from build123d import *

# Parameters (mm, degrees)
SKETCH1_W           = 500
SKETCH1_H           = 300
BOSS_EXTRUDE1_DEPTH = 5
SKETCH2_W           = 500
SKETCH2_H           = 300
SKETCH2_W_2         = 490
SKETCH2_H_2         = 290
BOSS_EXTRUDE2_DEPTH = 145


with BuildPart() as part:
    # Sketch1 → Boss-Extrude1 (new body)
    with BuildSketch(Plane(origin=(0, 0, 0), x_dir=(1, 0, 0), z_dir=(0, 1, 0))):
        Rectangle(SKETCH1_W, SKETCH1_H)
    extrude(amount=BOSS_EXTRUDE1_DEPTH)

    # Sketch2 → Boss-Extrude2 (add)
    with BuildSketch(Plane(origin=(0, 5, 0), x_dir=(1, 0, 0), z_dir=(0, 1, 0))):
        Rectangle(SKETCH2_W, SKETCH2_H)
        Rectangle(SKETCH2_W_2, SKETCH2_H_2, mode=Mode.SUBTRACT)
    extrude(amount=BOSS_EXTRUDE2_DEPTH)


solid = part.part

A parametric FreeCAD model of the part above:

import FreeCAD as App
import Part
import Sketcher

V = App.Vector
Q = App.Units.Quantity

doc = App.newDocument("Part")
body = doc.addObject("PartDesign::Body", "Body")

# Sketch on XZ plane
sketch1 = body.newObject("Sketcher::SketchObject", "Sketch")
sketch1.AttachmentSupport = (doc.getObject("XZ_Plane"), [""])
sketch1.MapMode = "FlatFace"
sketch1.addGeometry([
    Part.LineSegment(V(-250, -150, 0), V(-250, 150, 0)),
    Part.LineSegment(V(-250, 150, 0), V(250, 150, 0)),
    Part.LineSegment(V(250, 150, 0), V(250, -150, 0)),
    Part.LineSegment(V(250, -150, 0), V(-250, -150, 0)),
], False)
sketch1.addConstraint([
    Sketcher.Constraint("Coincident", 0, 2, 1, 1),
    Sketcher.Constraint("Coincident", 1, 2, 2, 1),
    Sketcher.Constraint("Coincident", 2, 2, 3, 1),
    Sketcher.Constraint("Coincident", 3, 2, 0, 1),
    Sketcher.Constraint("Vertical", 0),
    Sketcher.Constraint("Horizontal", 1),
    Sketcher.Constraint("Vertical", 2),
    Sketcher.Constraint("Horizontal", 3),
    Sketcher.Constraint("Symmetric", 0, 2, 2, 2, -1, 1),
    Sketcher.Constraint("DistanceX", 1, 1, 1, 2, Q("500 mm")),
    Sketcher.Constraint("DistanceY", 0, 1, 0, 2, Q("300 mm")),
])
pad1 = body.newObject("PartDesign::Pad", "Pad")
pad1.Profile = sketch1
pad1.Length = 5
pad1.Reversed = True

# Sketch on XZ plane
sketch2 = body.newObject("Sketcher::SketchObject", "Sketch001")
sketch2.AttachmentSupport = (doc.getObject("XZ_Plane"), [""])
sketch2.MapMode = "FlatFace"
sketch2.AttachmentOffset = App.Placement(V(0, 0, -5), App.Rotation())
sketch2.addGeometry([
    Part.LineSegment(V(-250, -150, 0), V(-250, 150, 0)),  # 0
    Part.LineSegment(V(-250, 150, 0), V(250, 150, 0)),  # 1
    Part.LineSegment(V(250, 150, 0), V(250, -150, 0)),  # 2
    Part.LineSegment(V(250, -150, 0), V(-250, -150, 0)),  # 3
    Part.LineSegment(V(245, 145, 0), V(-245, 145, 0)),  # 4
    Part.LineSegment(V(-245, 145, 0), V(-245, -145, 0)),  # 5
    Part.LineSegment(V(-245, -145, 0), V(245, -145, 0)),  # 6
    Part.LineSegment(V(245, -145, 0), V(245, 145, 0)),  # 7
], False)
sketch2.addConstraint([
    Sketcher.Constraint("Coincident", 0, 2, 1, 1),
    Sketcher.Constraint("Coincident", 1, 2, 2, 1),
    Sketcher.Constraint("Coincident", 2, 2, 3, 1),
    Sketcher.Constraint("Coincident", 3, 2, 0, 1),
    Sketcher.Constraint("Coincident", 4, 2, 5, 1),
    Sketcher.Constraint("Coincident", 5, 2, 6, 1),
    Sketcher.Constraint("Coincident", 6, 2, 7, 1),
    Sketcher.Constraint("Coincident", 7, 2, 4, 1),
    Sketcher.Constraint("Vertical", 0),
    Sketcher.Constraint("Horizontal", 1),
    Sketcher.Constraint("Vertical", 2),
    Sketcher.Constraint("Horizontal", 3),
    Sketcher.Constraint("Horizontal", 4),
    Sketcher.Constraint("Vertical", 5),
    Sketcher.Constraint("Horizontal", 6),
    Sketcher.Constraint("Vertical", 7),
    Sketcher.Constraint("Symmetric", 0, 2, 2, 2, -1, 1),
    Sketcher.Constraint("Symmetric", 4, 2, 6, 2, -1, 1),
    Sketcher.Constraint("DistanceX", 1, 1, 1, 2, Q("500 mm")),
    Sketcher.Constraint("DistanceX", 4, 2, 4, 1, Q("490 mm")),
    Sketcher.Constraint("DistanceY", 0, 1, 0, 2, Q("300 mm")),
    Sketcher.Constraint("DistanceY", 5, 2, 5, 1, Q("290 mm")),
])
pad2 = body.newObject("PartDesign::Pad", "Pad001")
pad2.Profile = sketch2
pad2.Length = 145
pad2.Reversed = True

doc.recompute()
